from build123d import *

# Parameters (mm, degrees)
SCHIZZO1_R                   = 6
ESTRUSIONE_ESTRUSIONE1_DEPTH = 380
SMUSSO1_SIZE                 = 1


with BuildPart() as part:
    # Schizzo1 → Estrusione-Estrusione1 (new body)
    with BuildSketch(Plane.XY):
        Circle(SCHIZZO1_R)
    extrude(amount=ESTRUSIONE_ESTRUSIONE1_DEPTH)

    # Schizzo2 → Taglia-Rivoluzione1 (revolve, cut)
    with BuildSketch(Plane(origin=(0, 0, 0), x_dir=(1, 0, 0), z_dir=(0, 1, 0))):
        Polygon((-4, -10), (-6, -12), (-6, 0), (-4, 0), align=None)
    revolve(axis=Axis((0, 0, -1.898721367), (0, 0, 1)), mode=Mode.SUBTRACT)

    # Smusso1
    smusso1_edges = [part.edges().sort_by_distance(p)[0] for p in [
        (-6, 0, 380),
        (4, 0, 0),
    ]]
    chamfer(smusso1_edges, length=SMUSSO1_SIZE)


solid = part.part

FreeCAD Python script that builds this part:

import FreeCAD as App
import Part
import Sketcher

V = App.Vector


def edges_at(feature, points):
    """Names of the edges that pass closest to the given points."""
    edges = feature.Shape.Edges
    near = lambda p: min(range(len(edges)), key=lambda i: edges[i].distToShape(Part.Vertex(*p))[0])
    return sorted({f"Edge{near(p) + 1}" for p in points})


def add_polygon(sketch, points):
    """Adds a closed chain of lines whose ends are joined by coincident constraints."""
    first, n = sketch.GeometryCount, len(points)
    for a, b in zip(points, points[1:] + points[:1]):
        sketch.addGeometry(Part.LineSegment(App.Vector(*a, 0), App.Vector(*b, 0)), False)
    for i in range(n):
        sketch.addConstraint(Sketcher.Constraint("Coincident", first + i, 2, first + (i + 1) % n, 1))

doc = App.newDocument("Part")
body = doc.addObject("PartDesign::Body", "Body")

# Sketch on XY plane
sketch1 = body.newObject("Sketcher::SketchObject", "Sketch")
sketch1.AttachmentSupport = (doc.getObject("XY_Plane"), [""])
sketch1.MapMode = "FlatFace"
sketch1.addGeometry(Part.Circle(V(0, 0, 0), V(0, 0, 1), 6), False)
sketch1.addConstraint([
    Sketcher.Constraint("Coincident", 0, 3, -1, 1),
    Sketcher.Constraint("Diameter", 0, 12.0),
])
pad1 = body.newObject("PartDesign::Pad", "Pad")
pad1.Profile = sketch1
pad1.Length = 380

# Sketch on XZ plane
sketch2 = body.newObject("Sketcher::SketchObject", "Sketch001")
sketch2.AttachmentSupport = (doc.getObject("XZ_Plane"), [""])
sketch2.MapMode = "FlatFace"
add_polygon(sketch2, [(-6, 12), (-4, 10), (-4, 0), (-6, 0)])  # lines 0-3
sketch2.addConstraint([
    Sketcher.Constraint("Vertical", 1),
    Sketcher.Constraint("Horizontal", 2),
    Sketcher.Constraint("Vertical", 3),
    Sketcher.Constraint("PointOnObject", 1, 2, -1),
    Sketcher.Constraint("DistanceX", 2, 2, 2, 1, 2.0),
    Sketcher.Constraint("DistanceY", 1, 2, 1, 1, 10.0),
    Sketcher.Constraint("DistanceY", 3, 1, 3, 2, 12.0),
    Sketcher.Constraint("DistanceX", 0, 2, -1, 1, 4.0),
])
groove = body.newObject("PartDesign::Groove", "Groove")
groove.Profile = sketch2
groove.ReferenceAxis = (sketch2, ["V_Axis"])
groove.Angle = 360
doc.recompute()

chamfer = body.newObject("PartDesign::Chamfer", "Chamfer")
chamfer.Base = (groove, edges_at(groove, [(-6, 0, 380), (4, 0, 0)]))
chamfer.Size = 1

doc.recompute()
